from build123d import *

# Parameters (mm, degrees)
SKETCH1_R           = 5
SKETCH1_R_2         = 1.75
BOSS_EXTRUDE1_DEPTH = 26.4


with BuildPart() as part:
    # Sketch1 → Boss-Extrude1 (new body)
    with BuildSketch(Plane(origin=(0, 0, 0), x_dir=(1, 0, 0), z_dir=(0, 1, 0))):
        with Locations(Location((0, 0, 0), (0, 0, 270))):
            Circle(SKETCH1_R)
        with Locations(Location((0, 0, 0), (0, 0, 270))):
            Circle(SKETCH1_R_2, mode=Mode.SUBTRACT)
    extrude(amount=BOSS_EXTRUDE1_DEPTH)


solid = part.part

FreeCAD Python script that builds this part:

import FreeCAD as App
import Part
import Sketcher

V = App.Vector
Q = App.Units.Quantity

doc = App.newDocument("Part")
body = doc.addObject("PartDesign::Body", "Body")

sketch1 = body.newObject("Sketcher::SketchObject", "Sketch")
sketch1.AttachmentSupport = (doc.getObject("XZ_Plane"), [""])
sketch1.MapMode = "FlatFace"
sketch1.addGeometry(Part.Circle(V(0, 0, 0), V(0, 0, 1), 5), False)
sketch1.addGeometry(Part.Circle(V(0, 0, 0), V(0, 0, 1), 1.8), False)
sketch1.addConstraint(Sketcher.Constraint("Coincident", 0, 3, -1, 1))
sketch1.addConstraint(Sketcher.Constraint("Coincident", 1, 3, -1, 1))
sketch1.addConstraint(Sketcher.Constraint("Diameter", 0, Q("10 mm")))
sketch1.addConstraint(Sketcher.Constraint("Diameter", 1, Q("3.5 mm")))
pad1 = body.newObject("PartDesign::Pad", "Pad")
pad1.Profile = sketch1
pad1.Length = 26.4
pad1.Reversed = True

doc.recompute()
